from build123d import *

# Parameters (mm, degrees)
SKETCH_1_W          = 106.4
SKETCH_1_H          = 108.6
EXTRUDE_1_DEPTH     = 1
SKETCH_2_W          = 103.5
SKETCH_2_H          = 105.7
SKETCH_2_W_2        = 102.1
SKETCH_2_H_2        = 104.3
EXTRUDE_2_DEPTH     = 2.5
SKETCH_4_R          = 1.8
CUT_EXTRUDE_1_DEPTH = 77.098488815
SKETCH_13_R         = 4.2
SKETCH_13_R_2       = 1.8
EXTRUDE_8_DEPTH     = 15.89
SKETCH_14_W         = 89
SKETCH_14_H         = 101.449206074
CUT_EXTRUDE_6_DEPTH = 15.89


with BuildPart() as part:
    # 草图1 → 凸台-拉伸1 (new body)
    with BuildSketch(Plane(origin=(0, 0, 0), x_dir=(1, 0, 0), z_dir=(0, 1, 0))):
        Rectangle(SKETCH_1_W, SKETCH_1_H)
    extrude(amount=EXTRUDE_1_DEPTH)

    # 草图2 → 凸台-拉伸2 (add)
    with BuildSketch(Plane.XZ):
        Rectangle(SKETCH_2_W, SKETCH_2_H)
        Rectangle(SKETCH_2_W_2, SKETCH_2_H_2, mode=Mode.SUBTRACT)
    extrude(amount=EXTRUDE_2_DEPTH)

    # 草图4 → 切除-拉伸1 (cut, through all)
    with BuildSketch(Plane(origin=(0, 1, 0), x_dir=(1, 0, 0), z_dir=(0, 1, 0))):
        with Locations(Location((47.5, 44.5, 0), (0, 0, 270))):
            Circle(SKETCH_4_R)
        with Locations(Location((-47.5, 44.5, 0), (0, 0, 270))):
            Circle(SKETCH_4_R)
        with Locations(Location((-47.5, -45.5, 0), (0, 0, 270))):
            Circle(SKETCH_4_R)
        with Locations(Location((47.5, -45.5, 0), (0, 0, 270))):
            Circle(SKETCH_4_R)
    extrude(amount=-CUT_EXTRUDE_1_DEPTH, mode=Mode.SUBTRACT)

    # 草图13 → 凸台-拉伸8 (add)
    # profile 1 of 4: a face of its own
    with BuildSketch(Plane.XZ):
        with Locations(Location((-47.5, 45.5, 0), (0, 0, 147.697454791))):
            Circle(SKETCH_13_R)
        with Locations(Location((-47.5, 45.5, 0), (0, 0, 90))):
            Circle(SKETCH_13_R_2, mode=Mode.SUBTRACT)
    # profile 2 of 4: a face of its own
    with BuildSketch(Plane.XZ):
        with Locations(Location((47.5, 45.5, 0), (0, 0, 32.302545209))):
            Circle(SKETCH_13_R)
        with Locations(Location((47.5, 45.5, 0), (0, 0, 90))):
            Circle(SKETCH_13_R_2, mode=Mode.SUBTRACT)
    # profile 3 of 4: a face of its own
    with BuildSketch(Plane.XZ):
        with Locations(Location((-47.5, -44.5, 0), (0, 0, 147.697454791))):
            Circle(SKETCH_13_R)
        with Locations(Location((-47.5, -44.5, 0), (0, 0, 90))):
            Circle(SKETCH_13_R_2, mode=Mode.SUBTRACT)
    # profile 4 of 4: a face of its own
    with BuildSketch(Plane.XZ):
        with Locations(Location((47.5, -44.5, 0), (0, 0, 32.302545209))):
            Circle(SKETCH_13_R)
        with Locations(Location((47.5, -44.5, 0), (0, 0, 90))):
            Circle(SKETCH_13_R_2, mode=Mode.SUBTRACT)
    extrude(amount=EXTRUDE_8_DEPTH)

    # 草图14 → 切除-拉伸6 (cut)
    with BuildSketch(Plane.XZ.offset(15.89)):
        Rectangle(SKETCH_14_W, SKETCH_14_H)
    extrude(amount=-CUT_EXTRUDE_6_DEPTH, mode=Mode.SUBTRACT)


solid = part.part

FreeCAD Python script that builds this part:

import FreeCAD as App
import Part
import Sketcher

V = App.Vector
Q = App.Units.Quantity


def add_polygon(sketch, points):
    """Adds a closed chain of lines whose ends are joined by coincident constraints."""
    first, n = sketch.GeometryCount, len(points)
    for a, b in zip(points, points[1:] + points[:1]):
        sketch.addGeometry(Part.LineSegment(App.Vector(*a, 0), App.Vector(*b, 0)), False)
    for i in range(n):
        sketch.addConstraint(Sketcher.Constraint("Coincident", first + i, 2, first + (i + 1) % n, 1))

doc = App.newDocument("Part")
body = doc.addObject("PartDesign::Body", "Body")

# Sketch on XZ plane
sketch1 = body.newObject("Sketcher::SketchObject", "Sketch")
sketch1.AttachmentSupport = (doc.getObject("XZ_Plane"), [""])
sketch1.MapMode = "FlatFace"
add_polygon(sketch1, [(-53.2, -54.3), (-53.2, 54.3), (53.2, 54.3), (53.2, -54.3)])  # lines 0-3
sketch1.addConstraint([
    Sketcher.Constraint("Vertical", 0),
    Sketcher.Constraint("Horizontal", 1),
    Sketcher.Constraint("Vertical", 2),
    Sketcher.Constraint("Horizontal", 3),
    Sketcher.Constraint("Symmetric", 0, 2, 2, 2, -1, 1),
    Sketcher.Constraint("DistanceX", 1, 1, 1, 2, Q("106.4 mm")),
    Sketcher.Constraint("DistanceY", 0, 1, 0, 2, Q("108.6 mm")),
])
pad1 = body.newObject("PartDesign::Pad", "Pad")
pad1.Profile = sketch1
pad1.Length = 1
pad1.Reversed = True

# Sketch on XZ plane
sketch2 = body.newObject("Sketcher::SketchObject", "Sketch001")
sketch2.AttachmentSupport = (doc.getObject("XZ_Plane"), [""])
sketch2.MapMode = "FlatFace"
add_polygon(sketch2, [(-51.75, 52.85), (-51.75, -52.85), (51.75, -52.85), (51.75, 52.85)])  # lines 0-3
add_polygon(sketch2, [(51.05, -52.15), (-51.05, -52.15), (-51.05, 52.15), (51.05, 52.15)])  # lines 4-7
sketch2.addConstraint([
    Sketcher.Constraint("Vertical", 0),
    Sketcher.Constraint("Horizontal", 1),
    Sketcher.Constraint("Vertical", 2),
    Sketcher.Constraint("Horizontal", 3),
    Sketcher.Constraint("Horizontal", 4),
    Sketcher.Constraint("Vertical", 5),
    Sketcher.Constraint("Horizontal", 6),
    Sketcher.Constraint("Vertical", 7),
    Sketcher.Constraint("Symmetric", 0, 2, 2, 2, -1, 1),
    Sketcher.Constraint("Symmetric", 4, 2, 6, 2, -1, 1),
    Sketcher.Constraint("DistanceX", 1, 1, 1, 2, Q("103.5 mm")),
    Sketcher.Constraint("DistanceX", 4, 2, 4, 1, Q("102.1 mm")),
    Sketcher.Constraint("DistanceY", 0, 2, 0, 1, Q("105.7 mm")),
    Sketcher.Constraint("DistanceY", 5, 1, 5, 2, Q("104.3 mm")),
])
pad2 = body.newObject("PartDesign::Pad", "Pad001")
pad2.Profile = sketch2
pad2.Length = 2.5

# Sketch on XZ plane
sketch3 = body.newObject("Sketcher::SketchObject", "Sketch002")
sketch3.AttachmentSupport = (doc.getObject("XZ_Plane"), [""])
sketch3.MapMode = "FlatFace"
sketch3.AttachmentOffset = App.Placement(V(0, 0, -1), App.Rotation())
sketch3.addGeometry([
    Part.Circle(V(47.5, -44.5, 0), V(0, 0, 1), 1.8),
    Part.Circle(V(-47.5, -44.5, 0), V(0, 0, 1), 1.8),
    Part.Circle(V(-47.5, 45.5, 0), V(0, 0, 1), 1.8),
    Part.Circle(V(47.5, 45.5, 0), V(0, 0, 1), 1.8),
], False)
sketch3.addConstraint([
    Sketcher.Constraint("Equal", 0, 1),
    Sketcher.Constraint("Equal", 1, 2),
    Sketcher.Constraint("Equal", 2, 3),
    Sketcher.Constraint("Symmetric", 0, 3, 1, 3, -2),
    Sketcher.Constraint("Symmetric", 2, 3, 3, 3, -2),
    Sketcher.Constraint("Vertical", 1, 3, 2, 3),
    Sketcher.Constraint("Diameter", 0, Q("3.6 mm")),
    Sketcher.Constraint("DistanceX", 1, 3, 0, 3, Q("95 mm")),
    Sketcher.Constraint("DistanceY", 1, 3, 2, 3, Q("90 mm")),
    Sketcher.Constraint("DistanceY", 0, 3, -1, 1, Q("44.5 mm")),
])
pocket1 = body.newObject("PartDesign::Pocket", "Pocket")
pocket1.Profile = sketch3
pocket1.Type = "ThroughAll"
pocket1.Reversed = True

# Sketch on XZ plane
sketch4 = body.newObject("Sketcher::SketchObject", "Sketch003")
sketch4.AttachmentSupport = (doc.getObject("XZ_Plane"), [""])
sketch4.MapMode = "FlatFace"
sketch4.addGeometry([
    Part.Circle(V(-47.5, 45.5, 0), V(0, 0, 1), 4.2),  # 0
    Part.Circle(V(-47.5, 45.5, 0), V(0, 0, 1), 1.8),  # 1
    Part.Circle(V(47.5, 45.5, 0), V(0, 0, 1), 4.2),  # 2
    Part.Circle(V(47.5, 45.5, 0), V(0, 0, 1), 1.8),  # 3
    Part.Circle(V(-47.5, -44.5, 0), V(0, 0, 1), 4.2),  # 4
    Part.Circle(V(-47.5, -44.5, 0), V(0, 0, 1), 1.8),  # 5
    Part.Circle(V(47.5, -44.5, 0), V(0, 0, 1), 4.2),  # 6
    Part.Circle(V(47.5, -44.5, 0), V(0, 0, 1), 1.8),  # 7
], False)
sketch4.addConstraint([
    Sketcher.Constraint("Coincident", 1, 3, 0, 3),
    Sketcher.Constraint("Coincident", 3, 3, 2, 3),
    Sketcher.Constraint("Coincident", 5, 3, 4, 3),
    Sketcher.Constraint("Coincident", 7, 3, 6, 3),
    Sketcher.Constraint("Equal", 0, 2),
    Sketcher.Constraint("Equal", 1, 3),
    Sketcher.Constraint("Equal", 2, 4),
    Sketcher.Constraint("Equal", 3, 5),
    Sketcher.Constraint("Equal", 4, 6),
    Sketcher.Constraint("Equal", 5, 7),
    Sketcher.Constraint("Symmetric", 0, 3, 2, 3, -2),
    Sketcher.Constraint("Symmetric", 4, 3, 6, 3, -2),
    Sketcher.Constraint("Vertical", 1, 3, 4, 3),
    Sketcher.Constraint("Diameter", 0, Q("8.4 mm")),
    Sketcher.Constraint("Diameter", 1, Q("3.6 mm")),
    Sketcher.Constraint("DistanceX", 0, 3, 2, 3, Q("95 mm")),
    Sketcher.Constraint("DistanceY", 4, 3, 0, 3, Q("90 mm")),
    Sketcher.Constraint("DistanceY", -1, 1, 0, 3, Q("45.5 mm")),
])
pad3 = body.newObject("PartDesign::Pad", "Pad002")
pad3.Profile = sketch4
pad3.Length = 15.89

# Sketch on XZ plane
sketch5 = body.newObject("Sketcher::SketchObject", "Sketch004")
sketch5.AttachmentSupport = (doc.getObject("XZ_Plane"), [""])
sketch5.MapMode = "FlatFace"
sketch5.AttachmentOffset = App.Placement(V(0, 0, 15.89), App.Rotation())
add_polygon(sketch5, [(-44.5, 50.724603), (-44.5, -50.724603), (44.5, -50.724603), (44.5, 50.724603)])  # lines 0-3
sketch5.addConstraint([
    Sketcher.Constraint("Vertical", 0),
    Sketcher.Constraint("Horizontal", 1),
    Sketcher.Constraint("Vertical", 2),
    Sketcher.Constraint("Horizontal", 3),
    Sketcher.Constraint("Symmetric", 0, 2, 2, 2, -1, 1),
    Sketcher.Constraint("DistanceX", 1, 1, 1, 2, Q("89 mm")),
    Sketcher.Constraint("DistanceY", 0, 2, 0, 1, Q("101.449206 mm")),
])
pocket2 = body.newObject("PartDesign::Pocket", "Pocket001")
pocket2.Profile = sketch5
pocket2.Length = 15.89

doc.recompute()
